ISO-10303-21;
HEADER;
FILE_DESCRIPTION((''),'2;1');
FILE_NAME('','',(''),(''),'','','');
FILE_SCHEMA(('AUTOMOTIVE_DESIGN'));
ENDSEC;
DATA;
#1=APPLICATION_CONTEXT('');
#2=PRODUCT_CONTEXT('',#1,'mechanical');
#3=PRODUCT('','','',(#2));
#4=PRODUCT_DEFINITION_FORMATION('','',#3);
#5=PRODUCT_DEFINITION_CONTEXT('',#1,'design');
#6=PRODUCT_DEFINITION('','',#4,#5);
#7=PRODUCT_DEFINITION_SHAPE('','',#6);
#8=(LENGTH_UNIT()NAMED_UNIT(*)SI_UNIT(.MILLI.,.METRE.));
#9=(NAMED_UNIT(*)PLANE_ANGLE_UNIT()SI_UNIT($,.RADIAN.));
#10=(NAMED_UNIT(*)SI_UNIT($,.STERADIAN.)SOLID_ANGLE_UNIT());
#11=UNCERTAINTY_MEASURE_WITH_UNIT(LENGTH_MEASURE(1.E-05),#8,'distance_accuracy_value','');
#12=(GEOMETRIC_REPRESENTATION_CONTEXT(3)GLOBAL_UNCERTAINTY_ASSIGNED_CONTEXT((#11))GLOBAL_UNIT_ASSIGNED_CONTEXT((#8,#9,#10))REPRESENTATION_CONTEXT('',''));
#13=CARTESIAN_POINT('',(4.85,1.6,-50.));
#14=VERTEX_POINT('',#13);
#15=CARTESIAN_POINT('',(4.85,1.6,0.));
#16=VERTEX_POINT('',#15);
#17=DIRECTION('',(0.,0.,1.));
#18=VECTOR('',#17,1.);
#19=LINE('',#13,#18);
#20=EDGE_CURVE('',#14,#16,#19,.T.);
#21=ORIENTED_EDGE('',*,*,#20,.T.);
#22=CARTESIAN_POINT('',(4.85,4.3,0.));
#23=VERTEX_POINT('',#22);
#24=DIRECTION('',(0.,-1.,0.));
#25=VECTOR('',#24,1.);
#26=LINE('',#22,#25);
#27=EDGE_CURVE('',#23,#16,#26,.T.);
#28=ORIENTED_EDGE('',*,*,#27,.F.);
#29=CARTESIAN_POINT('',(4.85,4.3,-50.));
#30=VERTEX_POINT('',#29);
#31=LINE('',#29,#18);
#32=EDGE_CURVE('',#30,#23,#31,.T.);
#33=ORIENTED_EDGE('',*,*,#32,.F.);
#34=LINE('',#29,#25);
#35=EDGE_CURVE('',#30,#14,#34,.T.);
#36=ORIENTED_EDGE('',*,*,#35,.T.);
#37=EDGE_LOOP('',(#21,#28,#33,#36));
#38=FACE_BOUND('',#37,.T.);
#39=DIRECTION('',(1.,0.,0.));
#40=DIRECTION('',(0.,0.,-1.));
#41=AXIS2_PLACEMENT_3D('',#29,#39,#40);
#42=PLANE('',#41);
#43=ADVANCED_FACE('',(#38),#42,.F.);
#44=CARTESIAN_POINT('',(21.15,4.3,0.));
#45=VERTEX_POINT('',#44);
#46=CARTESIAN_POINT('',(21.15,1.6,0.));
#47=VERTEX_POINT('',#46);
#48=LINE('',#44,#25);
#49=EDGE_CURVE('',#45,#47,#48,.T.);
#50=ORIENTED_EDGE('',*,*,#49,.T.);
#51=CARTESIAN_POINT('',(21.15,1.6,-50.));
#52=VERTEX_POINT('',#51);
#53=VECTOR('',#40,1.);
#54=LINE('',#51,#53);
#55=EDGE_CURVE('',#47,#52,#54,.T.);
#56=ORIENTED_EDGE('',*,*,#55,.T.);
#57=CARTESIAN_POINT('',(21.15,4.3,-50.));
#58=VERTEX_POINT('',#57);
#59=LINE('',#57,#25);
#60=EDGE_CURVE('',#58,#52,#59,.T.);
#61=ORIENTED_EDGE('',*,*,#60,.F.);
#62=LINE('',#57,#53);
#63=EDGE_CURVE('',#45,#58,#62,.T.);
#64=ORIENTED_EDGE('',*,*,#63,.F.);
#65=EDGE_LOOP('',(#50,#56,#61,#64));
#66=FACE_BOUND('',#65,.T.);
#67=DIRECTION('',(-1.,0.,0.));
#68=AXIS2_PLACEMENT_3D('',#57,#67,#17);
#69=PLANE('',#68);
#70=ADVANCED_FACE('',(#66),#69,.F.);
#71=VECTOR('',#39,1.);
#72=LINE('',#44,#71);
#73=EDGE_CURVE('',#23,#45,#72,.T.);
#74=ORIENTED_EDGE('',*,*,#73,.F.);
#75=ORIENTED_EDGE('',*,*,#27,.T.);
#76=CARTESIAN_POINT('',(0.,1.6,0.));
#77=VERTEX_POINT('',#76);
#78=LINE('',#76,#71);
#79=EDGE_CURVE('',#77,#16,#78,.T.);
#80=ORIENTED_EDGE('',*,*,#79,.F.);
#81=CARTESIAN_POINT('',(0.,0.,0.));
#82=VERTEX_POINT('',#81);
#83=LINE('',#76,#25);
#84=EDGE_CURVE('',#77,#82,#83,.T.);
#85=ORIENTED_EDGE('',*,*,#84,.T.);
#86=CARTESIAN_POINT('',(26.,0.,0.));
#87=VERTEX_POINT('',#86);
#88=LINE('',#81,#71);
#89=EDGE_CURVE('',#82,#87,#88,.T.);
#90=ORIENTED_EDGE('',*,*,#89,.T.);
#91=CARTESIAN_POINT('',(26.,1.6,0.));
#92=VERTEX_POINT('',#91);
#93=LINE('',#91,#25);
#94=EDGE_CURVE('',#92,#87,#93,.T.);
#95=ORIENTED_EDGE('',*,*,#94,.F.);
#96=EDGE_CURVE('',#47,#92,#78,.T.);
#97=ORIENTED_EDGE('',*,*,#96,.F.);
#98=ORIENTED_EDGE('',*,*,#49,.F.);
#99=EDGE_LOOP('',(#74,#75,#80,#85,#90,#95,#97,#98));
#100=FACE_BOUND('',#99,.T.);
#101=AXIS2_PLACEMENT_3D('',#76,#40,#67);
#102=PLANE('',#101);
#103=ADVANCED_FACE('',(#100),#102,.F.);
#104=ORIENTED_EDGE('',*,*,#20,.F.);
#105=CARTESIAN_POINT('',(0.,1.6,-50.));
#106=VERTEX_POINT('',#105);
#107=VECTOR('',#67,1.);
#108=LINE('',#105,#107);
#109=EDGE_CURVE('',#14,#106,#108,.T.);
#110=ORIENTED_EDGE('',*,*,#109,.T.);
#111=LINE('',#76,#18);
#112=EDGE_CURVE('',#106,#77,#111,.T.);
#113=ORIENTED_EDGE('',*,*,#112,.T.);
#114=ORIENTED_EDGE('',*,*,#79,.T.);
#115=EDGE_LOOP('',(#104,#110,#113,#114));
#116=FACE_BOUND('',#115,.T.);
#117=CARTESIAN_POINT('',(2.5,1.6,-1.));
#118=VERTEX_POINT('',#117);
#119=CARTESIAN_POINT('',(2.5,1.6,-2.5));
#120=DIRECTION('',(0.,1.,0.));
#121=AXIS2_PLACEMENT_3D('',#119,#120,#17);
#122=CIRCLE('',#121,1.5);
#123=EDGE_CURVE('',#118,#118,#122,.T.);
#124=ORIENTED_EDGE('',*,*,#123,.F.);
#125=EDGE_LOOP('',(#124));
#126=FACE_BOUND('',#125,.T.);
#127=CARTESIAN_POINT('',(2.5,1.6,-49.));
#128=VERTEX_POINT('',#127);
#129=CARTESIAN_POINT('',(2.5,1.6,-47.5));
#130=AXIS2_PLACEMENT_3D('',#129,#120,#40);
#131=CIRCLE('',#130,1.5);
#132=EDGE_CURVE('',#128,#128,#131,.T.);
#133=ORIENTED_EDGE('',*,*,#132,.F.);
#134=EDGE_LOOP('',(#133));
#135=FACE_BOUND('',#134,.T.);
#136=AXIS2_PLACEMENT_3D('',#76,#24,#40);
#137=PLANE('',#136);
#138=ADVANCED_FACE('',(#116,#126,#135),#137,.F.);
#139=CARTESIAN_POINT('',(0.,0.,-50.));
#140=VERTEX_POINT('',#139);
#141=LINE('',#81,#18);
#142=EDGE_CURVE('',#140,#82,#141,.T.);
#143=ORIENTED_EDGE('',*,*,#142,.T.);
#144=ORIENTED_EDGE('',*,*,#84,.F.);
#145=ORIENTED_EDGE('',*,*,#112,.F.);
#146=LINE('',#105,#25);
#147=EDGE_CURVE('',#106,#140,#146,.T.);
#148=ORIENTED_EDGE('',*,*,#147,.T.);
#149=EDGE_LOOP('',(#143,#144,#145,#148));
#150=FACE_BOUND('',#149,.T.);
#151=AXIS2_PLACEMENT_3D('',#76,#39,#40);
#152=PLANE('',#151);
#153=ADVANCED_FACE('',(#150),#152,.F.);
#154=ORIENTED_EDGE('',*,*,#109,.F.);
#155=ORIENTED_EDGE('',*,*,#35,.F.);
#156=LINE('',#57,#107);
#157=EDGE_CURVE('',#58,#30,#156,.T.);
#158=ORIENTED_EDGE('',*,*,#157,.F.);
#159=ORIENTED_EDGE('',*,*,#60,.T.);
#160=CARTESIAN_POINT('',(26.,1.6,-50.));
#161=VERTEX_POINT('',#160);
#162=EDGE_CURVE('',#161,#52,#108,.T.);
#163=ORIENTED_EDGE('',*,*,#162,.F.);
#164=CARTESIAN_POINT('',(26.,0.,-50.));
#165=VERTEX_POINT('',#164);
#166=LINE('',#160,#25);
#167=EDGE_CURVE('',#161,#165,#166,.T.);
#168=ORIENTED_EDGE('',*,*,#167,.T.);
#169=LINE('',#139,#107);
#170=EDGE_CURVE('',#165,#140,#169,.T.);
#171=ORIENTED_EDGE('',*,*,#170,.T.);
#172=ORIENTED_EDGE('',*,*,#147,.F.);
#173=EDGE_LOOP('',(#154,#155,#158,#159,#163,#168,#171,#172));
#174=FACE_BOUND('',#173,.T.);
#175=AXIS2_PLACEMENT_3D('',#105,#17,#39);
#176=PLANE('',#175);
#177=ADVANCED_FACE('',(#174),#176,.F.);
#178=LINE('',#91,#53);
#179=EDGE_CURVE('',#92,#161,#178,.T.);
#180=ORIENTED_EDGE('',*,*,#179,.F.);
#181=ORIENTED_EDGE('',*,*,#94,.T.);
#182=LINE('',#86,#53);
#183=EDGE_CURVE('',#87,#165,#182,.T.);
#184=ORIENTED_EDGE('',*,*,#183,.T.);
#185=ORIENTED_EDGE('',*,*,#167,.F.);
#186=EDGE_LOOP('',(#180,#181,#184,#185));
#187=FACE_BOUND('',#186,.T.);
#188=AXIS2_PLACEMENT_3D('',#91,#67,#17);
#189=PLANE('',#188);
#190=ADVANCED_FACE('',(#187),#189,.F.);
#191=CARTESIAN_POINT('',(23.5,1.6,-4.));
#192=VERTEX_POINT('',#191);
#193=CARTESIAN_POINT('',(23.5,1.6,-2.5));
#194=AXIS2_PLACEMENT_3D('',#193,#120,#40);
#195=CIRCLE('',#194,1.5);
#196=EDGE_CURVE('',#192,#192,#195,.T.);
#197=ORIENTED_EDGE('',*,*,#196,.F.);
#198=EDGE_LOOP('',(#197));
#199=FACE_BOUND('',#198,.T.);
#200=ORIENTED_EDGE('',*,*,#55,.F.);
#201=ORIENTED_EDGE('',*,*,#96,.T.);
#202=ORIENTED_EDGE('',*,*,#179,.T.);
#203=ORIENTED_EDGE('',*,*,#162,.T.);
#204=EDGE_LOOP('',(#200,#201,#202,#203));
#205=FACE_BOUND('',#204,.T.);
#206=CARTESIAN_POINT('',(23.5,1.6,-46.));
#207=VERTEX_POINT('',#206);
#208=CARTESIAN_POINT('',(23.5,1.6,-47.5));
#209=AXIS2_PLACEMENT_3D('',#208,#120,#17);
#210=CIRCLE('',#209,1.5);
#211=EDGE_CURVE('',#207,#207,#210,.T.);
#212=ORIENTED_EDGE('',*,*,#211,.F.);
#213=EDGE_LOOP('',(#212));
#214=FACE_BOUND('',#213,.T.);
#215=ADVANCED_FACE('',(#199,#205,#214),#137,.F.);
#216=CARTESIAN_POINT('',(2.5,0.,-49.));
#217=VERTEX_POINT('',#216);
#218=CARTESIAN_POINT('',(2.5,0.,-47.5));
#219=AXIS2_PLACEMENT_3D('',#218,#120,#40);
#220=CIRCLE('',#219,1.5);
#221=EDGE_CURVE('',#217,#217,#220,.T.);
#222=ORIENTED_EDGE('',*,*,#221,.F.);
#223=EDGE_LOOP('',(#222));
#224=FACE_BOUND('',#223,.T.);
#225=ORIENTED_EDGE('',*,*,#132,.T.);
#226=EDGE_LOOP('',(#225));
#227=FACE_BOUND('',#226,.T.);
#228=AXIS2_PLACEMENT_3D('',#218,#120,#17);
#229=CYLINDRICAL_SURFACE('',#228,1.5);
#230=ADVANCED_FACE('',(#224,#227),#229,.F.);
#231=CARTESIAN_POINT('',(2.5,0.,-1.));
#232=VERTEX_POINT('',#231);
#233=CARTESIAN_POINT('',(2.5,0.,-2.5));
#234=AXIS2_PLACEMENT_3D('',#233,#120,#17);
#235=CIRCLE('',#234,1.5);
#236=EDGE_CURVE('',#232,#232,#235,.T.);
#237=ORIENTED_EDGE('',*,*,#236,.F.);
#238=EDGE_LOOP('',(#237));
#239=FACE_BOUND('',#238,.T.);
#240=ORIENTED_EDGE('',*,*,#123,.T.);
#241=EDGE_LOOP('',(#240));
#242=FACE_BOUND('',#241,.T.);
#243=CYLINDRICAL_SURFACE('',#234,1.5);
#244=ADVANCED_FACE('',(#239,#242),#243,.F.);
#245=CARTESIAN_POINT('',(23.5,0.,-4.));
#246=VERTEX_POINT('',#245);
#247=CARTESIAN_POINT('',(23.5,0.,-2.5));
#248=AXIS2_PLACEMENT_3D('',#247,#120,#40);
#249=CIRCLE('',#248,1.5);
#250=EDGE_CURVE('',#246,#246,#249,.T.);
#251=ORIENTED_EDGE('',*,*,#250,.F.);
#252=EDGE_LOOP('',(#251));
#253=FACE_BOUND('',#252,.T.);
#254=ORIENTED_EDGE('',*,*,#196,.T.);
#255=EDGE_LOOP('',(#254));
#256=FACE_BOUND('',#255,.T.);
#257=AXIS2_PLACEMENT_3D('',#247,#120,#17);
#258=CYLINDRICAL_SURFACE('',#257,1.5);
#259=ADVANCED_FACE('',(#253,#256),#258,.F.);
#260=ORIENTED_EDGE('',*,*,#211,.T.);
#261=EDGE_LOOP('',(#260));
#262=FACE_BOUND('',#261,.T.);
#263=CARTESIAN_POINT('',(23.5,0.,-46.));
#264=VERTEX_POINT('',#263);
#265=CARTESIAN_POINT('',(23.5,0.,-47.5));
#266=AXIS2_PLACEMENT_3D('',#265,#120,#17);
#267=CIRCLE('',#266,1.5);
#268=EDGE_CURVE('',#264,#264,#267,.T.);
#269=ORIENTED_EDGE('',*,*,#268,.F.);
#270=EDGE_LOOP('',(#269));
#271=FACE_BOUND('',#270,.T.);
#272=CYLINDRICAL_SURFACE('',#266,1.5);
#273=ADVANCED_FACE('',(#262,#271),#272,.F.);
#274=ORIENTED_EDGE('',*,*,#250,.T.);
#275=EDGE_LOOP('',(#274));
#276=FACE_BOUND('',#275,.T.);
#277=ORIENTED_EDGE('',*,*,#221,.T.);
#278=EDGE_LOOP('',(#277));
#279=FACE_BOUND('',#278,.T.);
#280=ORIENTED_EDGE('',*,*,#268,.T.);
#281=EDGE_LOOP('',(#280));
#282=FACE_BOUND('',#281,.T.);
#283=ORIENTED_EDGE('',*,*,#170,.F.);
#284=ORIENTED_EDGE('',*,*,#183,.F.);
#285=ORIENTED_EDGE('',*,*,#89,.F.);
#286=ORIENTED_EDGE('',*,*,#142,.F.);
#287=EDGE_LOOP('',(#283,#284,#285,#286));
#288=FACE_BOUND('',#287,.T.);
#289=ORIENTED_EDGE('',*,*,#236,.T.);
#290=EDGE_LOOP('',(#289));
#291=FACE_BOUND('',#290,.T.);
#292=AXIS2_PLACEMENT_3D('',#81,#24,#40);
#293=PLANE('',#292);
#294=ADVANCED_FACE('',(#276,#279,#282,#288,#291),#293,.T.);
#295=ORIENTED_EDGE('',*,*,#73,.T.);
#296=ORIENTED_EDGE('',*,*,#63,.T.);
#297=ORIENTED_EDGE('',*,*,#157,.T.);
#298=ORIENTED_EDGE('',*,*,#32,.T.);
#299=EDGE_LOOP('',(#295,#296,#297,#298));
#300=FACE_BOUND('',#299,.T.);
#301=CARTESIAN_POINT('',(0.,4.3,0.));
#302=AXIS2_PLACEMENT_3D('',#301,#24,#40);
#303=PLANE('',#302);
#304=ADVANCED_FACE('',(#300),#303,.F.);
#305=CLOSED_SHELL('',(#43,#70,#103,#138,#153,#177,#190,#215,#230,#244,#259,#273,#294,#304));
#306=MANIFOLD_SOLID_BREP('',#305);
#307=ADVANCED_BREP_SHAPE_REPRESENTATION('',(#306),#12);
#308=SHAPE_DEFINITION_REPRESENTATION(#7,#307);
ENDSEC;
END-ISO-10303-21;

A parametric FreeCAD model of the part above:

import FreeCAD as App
import Part
import Sketcher

doc = App.newDocument("Part")
body = doc.addObject("PartDesign::Body", "Body")

sketch1 = body.newObject("Sketcher::SketchObject", "Sketch")
sketch1.AttachmentSupport = (doc.getObject("XZ_Plane"), [""])
sketch1.MapMode = "FlatFace"
sketch1.addGeometry([
    Part.LineSegment(App.Vector(0, -50, 0), App.Vector(0, 0, 0)),
    Part.LineSegment(App.Vector(0, 0, 0), App.Vector(26, 0, 0)),
    Part.LineSegment(App.Vector(26, 0, 0), App.Vector(26, -50, 0)),
    Part.LineSegment(App.Vector(26, -50, 0), App.Vector(0, -50, 0)),
], False)
sketch1.addConstraint([
    Sketcher.Constraint("Coincident", 0, 2, 1, 1),
    Sketcher.Constraint("Coincident", 1, 2, 2, 1),
    Sketcher.Constraint("Coincident", 2, 2, 3, 1),
    Sketcher.Constraint("Coincident", 3, 2, 0, 1),
    Sketcher.Constraint("Vertical", 0),
    Sketcher.Constraint("Horizontal", 1),
    Sketcher.Constraint("Vertical", 2),
    Sketcher.Constraint("Horizontal", 3),
    Sketcher.Constraint("Coincident", 0, 2, -1, 1),
    Sketcher.Constraint("DistanceX", 1, 1, 1, 2, 26.0),
    Sketcher.Constraint("DistanceY", 0, 1, 0, 2, 50.0),
])
pad1 = body.newObject("PartDesign::Pad", "Pad")
pad1.Profile = sketch1
pad1.Length = 1.6
pad1.Reversed = True

sketch2 = body.newObject("Sketcher::SketchObject", "Sketch001")
sketch2.AttachmentSupport = (doc.getObject("XZ_Plane"), [""])
sketch2.MapMode = "FlatFace"
sketch2.AttachmentOffset = App.Placement(App.Vector(0, 0, -1.6), App.Rotation())
sketch2.addGeometry([
    Part.Circle(App.Vector(2.5, -2.5, 0), App.Vector(0, 0, 1), 1.5),
    Part.Circle(App.Vector(23.5, -2.5, 0), App.Vector(0, 0, 1), 1.5),
    Part.Circle(App.Vector(23.5, -47.5, 0), App.Vector(0, 0, 1), 1.5),
    Part.Circle(App.Vector(2.5, -47.5, 0), App.Vector(0, 0, 1), 1.5),
], False)
sketch2.addConstraint([
    Sketcher.Constraint("Equal", 0, 1),
    Sketcher.Constraint("Equal", 1, 2),
    Sketcher.Constraint("Equal", 2, 3),
    Sketcher.Constraint("Horizontal", 0, 3, 1, 3),
    Sketcher.Constraint("Horizontal", 2, 3, 3, 3),
    Sketcher.Constraint("Vertical", 1, 3, 2, 3),
    Sketcher.Constraint("Vertical", 0, 3, 3, 3),
    Sketcher.Constraint("Diameter", 0, 3.0),
    Sketcher.Constraint("DistanceX", 0, 3, 1, 3, 21.0),
    Sketcher.Constraint("DistanceY", 2, 3, 1, 3, 45.0),
    Sketcher.Constraint("DistanceX", -1, 1, 0, 3, 2.5),
    Sketcher.Constraint("DistanceY", 0, 3, -1, 1, 2.5),
])
pocket1 = body.newObject("PartDesign::Pocket", "Pocket")
pocket1.Profile = sketch2
pocket1.Type = "ThroughAll"
pocket1.Reversed = True

sketch3 = body.newObject("Sketcher::SketchObject", "Sketch002")
sketch3.AttachmentSupport = (doc.getObject("XZ_Plane"), [""])
sketch3.MapMode = "FlatFace"
sketch3.AttachmentOffset = App.Placement(App.Vector(0, 0, -1.6), App.Rotation())
sketch3.addGeometry([
    Part.LineSegment(App.Vector(5, -50, 0), App.Vector(5, 0, 0)),
    Part.LineSegment(App.Vector(5, 0, 0), App.Vector(21, 0, 0)),
    Part.LineSegment(App.Vector(21, 0, 0), App.Vector(21, -50, 0)),
    Part.LineSegment(App.Vector(21, -50, 0), App.Vector(5, -50, 0)),
], False)
sketch3.addConstraint([
    Sketcher.Constraint("Coincident", 0, 2, 1, 1),
    Sketcher.Constraint("Coincident", 1, 2, 2, 1),
    Sketcher.Constraint("Coincident", 2, 2, 3, 1),
    Sketcher.Constraint("Coincident", 3, 2, 0, 1),
    Sketcher.Constraint("Vertical", 0),
    Sketcher.Constraint("Horizontal", 1),
    Sketcher.Constraint("Vertical", 2),
    Sketcher.Constraint("Horizontal", 3),
    Sketcher.Constraint("PointOnObject", 0, 2, -1),
    Sketcher.Constraint("DistanceY", 0, 1, 0, 2, 50.0),
    Sketcher.Constraint("DistanceX", 1, 1, 1, 2, 16.3),
    Sketcher.Constraint("DistanceX", -1, 1, 0, 2, 4.85),
])
pad2 = body.newObject("PartDesign::Pad", "Pad001")
pad2.Profile = sketch3
pad2.Length = 2.7
pad2.Reversed = True

doc.recompute()
